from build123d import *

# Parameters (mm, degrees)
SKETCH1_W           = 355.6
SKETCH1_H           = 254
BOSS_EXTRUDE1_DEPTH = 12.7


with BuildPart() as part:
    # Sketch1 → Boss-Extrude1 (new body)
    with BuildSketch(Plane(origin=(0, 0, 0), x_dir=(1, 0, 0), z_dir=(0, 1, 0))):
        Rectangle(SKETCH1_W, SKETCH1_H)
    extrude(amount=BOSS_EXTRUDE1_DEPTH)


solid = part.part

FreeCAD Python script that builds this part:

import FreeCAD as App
import Part
import Sketcher
Q = App.Units.Quantity


def add_polygon(sketch, points):
    """Adds a closed chain of lines whose ends are joined by coincident constraints."""
    first, n = sketch.GeometryCount, len(points)
    for a, b in zip(points, points[1:] + points[:1]):
        sketch.addGeometry(Part.LineSegment(App.Vector(*a, 0), App.Vector(*b, 0)), False)
    for i in range(n):
        sketch.addConstraint(Sketcher.Constraint("Coincident", first + i, 2, first + (i + 1) % n, 1))

doc = App.newDocument("Part")
params = doc.addObject("Spreadsheet::Sheet", "Params")
for row, (alias, value) in enumerate([
    ("sketch1_width", "14 in"),
    ("sketch1_height", "10 in"),
    ("pad1_length", "0.5 in"),
], start=1):
    params.set(f"A{row}", alias)
    params.set(f"B{row}", "=" + value)
    params.setAlias(f"B{row}", alias)

body = doc.addObject("PartDesign::Body", "Body")

# Sketch on XZ plane
sketch1 = body.newObject("Sketcher::SketchObject", "Sketch")
sketch1.AttachmentSupport = (doc.getObject("XZ_Plane"), [""])
sketch1.MapMode = "FlatFace"
add_polygon(sketch1, [(-177.8, -127), (-177.8, 127), (177.8, 127), (177.8, -127)])  # lines 0-3
sketch1.addConstraint([
    Sketcher.Constraint("Vertical", 0),
    Sketcher.Constraint("Horizontal", 1),
    Sketcher.Constraint("Vertical", 2),
    Sketcher.Constraint("Horizontal", 3),
    Sketcher.Constraint("Symmetric", 0, 2, 2, 2, -1, 1),
    Sketcher.Constraint("DistanceX", 1, 1, 1, 2, Q("14 in")),
    Sketcher.Constraint("DistanceY", 0, 1, 0, 2, Q("10 in")),
])
sketch1.setExpression("Constraints[9]", "Params.sketch1_width")
sketch1.setExpression("Constraints[10]", "Params.sketch1_height")
pad1 = body.newObject("PartDesign::Pad", "Pad")
pad1.Profile = sketch1
pad1.setExpression("Length", "Params.pad1_length")
pad1.Reversed = True

doc.recompute()
